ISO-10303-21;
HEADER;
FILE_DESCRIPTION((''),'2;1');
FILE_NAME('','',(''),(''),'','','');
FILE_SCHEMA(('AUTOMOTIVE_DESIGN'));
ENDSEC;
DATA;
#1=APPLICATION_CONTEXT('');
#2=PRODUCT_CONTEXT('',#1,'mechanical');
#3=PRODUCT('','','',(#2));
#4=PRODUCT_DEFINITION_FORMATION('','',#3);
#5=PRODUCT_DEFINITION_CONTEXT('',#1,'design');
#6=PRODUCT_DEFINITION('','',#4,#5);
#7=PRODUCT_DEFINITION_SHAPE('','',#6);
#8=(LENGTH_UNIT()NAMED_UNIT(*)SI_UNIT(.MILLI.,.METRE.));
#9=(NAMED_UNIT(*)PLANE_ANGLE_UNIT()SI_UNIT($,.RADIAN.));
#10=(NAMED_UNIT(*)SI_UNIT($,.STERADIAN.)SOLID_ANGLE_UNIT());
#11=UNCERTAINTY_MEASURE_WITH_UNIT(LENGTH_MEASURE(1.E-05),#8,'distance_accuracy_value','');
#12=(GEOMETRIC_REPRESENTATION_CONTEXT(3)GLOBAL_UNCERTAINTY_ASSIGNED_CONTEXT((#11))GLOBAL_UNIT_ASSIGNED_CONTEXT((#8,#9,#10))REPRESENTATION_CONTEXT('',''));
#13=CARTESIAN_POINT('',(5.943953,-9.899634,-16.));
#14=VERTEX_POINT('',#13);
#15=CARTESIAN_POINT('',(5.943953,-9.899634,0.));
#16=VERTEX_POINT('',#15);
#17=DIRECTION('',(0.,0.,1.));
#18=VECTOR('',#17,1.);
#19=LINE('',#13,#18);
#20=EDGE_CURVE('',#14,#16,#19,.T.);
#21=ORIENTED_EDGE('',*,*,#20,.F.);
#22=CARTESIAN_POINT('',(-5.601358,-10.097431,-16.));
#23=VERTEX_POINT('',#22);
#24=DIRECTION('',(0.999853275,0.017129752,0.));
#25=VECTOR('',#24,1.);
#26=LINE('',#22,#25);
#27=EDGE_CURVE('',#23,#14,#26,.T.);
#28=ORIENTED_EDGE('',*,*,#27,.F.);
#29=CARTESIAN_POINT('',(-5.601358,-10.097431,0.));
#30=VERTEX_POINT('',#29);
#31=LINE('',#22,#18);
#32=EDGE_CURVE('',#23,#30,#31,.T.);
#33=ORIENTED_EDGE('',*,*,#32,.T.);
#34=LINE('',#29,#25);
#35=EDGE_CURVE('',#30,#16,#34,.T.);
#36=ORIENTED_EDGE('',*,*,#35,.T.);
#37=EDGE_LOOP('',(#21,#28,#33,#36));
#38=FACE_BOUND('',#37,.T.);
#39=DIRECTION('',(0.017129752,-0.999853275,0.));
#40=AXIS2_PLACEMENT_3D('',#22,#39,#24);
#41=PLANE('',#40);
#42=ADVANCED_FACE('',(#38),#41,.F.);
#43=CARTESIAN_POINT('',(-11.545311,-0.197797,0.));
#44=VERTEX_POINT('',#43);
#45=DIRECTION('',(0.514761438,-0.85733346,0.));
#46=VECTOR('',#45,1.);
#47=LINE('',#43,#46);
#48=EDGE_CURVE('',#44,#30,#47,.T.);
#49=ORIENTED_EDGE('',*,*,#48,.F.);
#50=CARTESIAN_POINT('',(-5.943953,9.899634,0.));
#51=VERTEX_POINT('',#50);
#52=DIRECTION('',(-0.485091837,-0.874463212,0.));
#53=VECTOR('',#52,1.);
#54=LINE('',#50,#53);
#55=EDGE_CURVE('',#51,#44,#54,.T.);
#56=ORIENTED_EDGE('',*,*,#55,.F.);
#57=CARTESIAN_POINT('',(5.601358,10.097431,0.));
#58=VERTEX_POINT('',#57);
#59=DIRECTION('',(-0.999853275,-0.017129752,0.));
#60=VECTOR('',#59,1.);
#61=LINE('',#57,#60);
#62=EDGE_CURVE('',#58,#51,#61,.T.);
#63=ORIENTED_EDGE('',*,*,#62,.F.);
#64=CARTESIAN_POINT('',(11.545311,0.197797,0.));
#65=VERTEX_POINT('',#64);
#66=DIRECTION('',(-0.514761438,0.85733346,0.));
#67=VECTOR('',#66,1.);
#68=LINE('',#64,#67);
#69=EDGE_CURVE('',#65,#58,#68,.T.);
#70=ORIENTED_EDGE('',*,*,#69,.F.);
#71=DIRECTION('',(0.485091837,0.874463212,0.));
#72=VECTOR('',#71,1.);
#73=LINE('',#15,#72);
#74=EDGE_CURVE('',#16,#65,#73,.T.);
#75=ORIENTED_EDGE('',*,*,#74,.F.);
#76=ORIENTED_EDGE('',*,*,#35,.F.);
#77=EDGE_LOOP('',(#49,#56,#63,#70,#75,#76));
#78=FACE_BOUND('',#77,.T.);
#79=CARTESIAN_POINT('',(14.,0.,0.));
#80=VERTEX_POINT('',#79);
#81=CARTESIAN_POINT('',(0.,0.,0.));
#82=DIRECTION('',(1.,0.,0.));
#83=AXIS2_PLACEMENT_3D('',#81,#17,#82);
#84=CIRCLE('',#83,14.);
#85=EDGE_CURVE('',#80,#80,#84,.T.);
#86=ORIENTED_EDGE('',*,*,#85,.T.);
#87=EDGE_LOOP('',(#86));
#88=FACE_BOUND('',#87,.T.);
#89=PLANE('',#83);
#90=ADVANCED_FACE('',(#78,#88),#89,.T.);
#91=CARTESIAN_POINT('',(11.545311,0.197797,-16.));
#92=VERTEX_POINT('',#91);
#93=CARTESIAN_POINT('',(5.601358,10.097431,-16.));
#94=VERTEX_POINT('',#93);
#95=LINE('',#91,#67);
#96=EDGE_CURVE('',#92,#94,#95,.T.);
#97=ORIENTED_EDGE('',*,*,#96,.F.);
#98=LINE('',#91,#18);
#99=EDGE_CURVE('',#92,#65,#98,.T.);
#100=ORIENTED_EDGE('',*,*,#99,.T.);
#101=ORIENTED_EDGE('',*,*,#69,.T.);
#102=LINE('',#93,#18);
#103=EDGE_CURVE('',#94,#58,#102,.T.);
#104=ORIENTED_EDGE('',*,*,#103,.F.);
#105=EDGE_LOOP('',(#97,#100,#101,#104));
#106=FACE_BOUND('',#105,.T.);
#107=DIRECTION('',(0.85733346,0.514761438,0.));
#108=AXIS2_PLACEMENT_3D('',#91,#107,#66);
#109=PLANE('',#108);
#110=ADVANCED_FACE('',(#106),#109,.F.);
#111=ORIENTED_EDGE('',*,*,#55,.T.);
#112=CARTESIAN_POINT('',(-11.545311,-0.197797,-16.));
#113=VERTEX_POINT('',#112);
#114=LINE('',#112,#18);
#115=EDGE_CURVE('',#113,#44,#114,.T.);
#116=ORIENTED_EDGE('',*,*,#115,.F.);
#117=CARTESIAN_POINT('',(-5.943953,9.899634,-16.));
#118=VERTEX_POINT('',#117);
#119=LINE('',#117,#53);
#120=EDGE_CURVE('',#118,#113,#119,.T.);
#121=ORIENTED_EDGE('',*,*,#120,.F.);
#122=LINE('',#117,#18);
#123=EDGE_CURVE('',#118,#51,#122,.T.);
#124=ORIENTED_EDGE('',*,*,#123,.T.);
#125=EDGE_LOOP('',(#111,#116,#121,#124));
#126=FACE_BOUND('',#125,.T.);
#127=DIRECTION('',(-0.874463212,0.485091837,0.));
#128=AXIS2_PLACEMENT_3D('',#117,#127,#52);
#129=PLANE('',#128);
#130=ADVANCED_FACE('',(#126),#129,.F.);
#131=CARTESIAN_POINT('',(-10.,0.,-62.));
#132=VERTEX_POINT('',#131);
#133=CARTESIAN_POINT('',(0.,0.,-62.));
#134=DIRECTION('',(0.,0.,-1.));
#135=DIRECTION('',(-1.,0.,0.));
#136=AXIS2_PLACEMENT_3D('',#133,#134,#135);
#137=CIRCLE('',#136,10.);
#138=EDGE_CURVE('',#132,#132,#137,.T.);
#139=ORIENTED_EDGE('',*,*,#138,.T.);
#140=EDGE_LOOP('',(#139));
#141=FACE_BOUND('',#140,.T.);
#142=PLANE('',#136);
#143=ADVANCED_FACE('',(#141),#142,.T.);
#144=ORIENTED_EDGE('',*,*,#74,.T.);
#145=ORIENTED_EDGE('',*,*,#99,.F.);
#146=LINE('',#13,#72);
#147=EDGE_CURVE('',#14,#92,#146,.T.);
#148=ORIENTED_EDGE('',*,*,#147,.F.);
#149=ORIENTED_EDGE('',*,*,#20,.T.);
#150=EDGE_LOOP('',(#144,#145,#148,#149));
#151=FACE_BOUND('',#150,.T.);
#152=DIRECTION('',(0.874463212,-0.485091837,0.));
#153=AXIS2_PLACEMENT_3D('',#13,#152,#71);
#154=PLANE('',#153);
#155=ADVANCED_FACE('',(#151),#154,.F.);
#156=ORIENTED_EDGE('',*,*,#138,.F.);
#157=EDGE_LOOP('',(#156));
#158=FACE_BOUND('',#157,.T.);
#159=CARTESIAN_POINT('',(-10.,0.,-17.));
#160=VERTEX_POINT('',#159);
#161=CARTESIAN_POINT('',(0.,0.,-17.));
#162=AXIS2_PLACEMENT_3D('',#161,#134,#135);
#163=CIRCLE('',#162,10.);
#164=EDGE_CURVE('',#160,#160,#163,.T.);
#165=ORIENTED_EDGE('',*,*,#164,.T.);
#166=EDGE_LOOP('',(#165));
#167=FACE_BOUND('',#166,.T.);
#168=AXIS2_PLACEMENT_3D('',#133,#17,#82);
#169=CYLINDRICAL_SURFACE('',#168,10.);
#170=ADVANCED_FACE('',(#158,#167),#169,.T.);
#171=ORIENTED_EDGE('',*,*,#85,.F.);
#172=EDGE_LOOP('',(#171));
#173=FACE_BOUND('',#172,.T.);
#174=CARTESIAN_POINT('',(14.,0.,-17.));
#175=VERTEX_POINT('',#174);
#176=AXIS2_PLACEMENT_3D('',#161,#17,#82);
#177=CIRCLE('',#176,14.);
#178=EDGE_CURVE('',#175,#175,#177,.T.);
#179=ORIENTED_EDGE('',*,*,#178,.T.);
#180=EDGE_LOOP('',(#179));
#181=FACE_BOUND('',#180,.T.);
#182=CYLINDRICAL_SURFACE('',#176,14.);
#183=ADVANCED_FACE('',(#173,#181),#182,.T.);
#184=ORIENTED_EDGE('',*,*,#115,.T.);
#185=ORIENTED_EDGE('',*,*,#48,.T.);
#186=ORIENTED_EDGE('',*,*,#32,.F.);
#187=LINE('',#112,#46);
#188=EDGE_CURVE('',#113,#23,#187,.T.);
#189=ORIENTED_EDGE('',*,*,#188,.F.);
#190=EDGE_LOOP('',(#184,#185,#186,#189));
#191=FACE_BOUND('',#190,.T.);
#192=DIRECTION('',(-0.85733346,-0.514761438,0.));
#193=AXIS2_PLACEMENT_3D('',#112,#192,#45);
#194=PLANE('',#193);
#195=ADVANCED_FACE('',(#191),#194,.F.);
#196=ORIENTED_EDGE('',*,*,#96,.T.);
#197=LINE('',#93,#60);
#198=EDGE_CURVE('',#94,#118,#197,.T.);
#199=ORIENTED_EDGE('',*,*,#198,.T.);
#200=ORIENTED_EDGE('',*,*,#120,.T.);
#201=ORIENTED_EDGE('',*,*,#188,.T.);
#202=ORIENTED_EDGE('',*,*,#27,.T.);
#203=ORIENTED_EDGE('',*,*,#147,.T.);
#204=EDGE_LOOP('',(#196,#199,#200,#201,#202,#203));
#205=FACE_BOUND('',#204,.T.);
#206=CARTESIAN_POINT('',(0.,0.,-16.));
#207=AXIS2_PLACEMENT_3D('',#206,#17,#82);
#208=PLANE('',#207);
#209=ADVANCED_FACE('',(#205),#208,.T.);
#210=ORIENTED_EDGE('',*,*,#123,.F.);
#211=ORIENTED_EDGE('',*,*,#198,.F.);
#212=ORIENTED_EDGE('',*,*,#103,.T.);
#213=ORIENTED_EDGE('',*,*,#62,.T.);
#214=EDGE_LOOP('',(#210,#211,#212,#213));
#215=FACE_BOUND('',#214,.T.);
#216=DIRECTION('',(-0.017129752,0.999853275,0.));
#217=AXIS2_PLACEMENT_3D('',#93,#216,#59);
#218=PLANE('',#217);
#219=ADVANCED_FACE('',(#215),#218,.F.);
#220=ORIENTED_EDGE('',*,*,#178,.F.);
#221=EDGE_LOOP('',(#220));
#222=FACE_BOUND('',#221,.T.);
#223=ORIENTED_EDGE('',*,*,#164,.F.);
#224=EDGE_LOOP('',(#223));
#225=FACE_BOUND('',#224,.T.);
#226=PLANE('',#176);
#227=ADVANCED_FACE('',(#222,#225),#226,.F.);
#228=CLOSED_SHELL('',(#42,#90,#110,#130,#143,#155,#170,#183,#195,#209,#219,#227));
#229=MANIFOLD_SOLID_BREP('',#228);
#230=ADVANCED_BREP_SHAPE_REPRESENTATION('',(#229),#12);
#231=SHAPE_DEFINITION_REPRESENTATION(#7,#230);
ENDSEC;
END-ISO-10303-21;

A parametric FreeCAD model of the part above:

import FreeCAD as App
import Part
import Sketcher
from FreeCAD import Vector


def add_polygon(sketch, points):
    """Adds a closed chain of lines whose ends are joined by coincident constraints."""
    first, n = sketch.GeometryCount, len(points)
    for a, b in zip(points, points[1:] + points[:1]):
        sketch.addGeometry(Part.LineSegment(App.Vector(*a, 0), App.Vector(*b, 0)), False)
    for i in range(n):
        sketch.addConstraint(Sketcher.Constraint("Coincident", first + i, 2, first + (i + 1) % n, 1))

doc = App.newDocument("Part")
body = doc.addObject("PartDesign::Body", "Body")

# Sketch on XY plane
sketch1 = doc.addObject("Sketcher::SketchObject", "Sketch")
body.addObject(sketch1)
sketch1.AttachmentSupport = (doc.XY_Plane, [""])
sketch1.MapMode = "FlatFace"
sketch1.addGeometry(Part.Circle(Vector(0, 0, 0), Vector(0, 0, 1), 14), False)
sketch1.addConstraint([
    Sketcher.Constraint("Coincident", 0, 3, -1, 1),
    Sketcher.Constraint("Diameter", 0, 28.0),
])
pad1 = doc.addObject("PartDesign::Pad", "Pad")
body.addObject(pad1)
pad1.Profile = sketch1
pad1.Length = 17
pad1.Reversed = True

# Sketch on XY plane
sketch2 = doc.addObject("Sketcher::SketchObject", "Sketch001")
body.addObject(sketch2)
sketch2.AttachmentSupport = (doc.XY_Plane, [""])
sketch2.MapMode = "FlatFace"
sketch2.AttachmentOffset = App.Placement(Vector(0, 0, -17), App.Rotation())
sketch2.addGeometry(Part.Circle(Vector(0, 0, 0), Vector(0, 0, 1), 10), False)
sketch2.addConstraint([
    Sketcher.Constraint("Coincident", 0, 3, -1, 1),
    Sketcher.Constraint("Diameter", 0, 20.0),
])
pad2 = doc.addObject("PartDesign::Pad", "Pad001")
body.addObject(pad2)
pad2.Profile = sketch2
pad2.Length = 45
pad2.Reversed = True

# Sketch on XY plane
sketch3 = doc.addObject("Sketcher::SketchObject", "Sketch002")
body.addObject(sketch3)
sketch3.AttachmentSupport = (doc.XY_Plane, [""])
sketch3.MapMode = "FlatFace"
add_polygon(sketch3, [(5.601358, 10.097431), (-5.943953, 9.899634), (-11.545311, -0.197797), (-5.601358, -10.097431), (5.943953, -9.899634), (11.545311, 0.197797)])  # lines 0-5
sketch3.addConstraint([
    Sketcher.Constraint("Symmetric", 0, 2, 3, 2, -1, 1),
    Sketcher.Constraint("Symmetric", 1, 2, 4, 2, -1, 1),
    Sketcher.Constraint("Symmetric", 2, 2, 5, 2, -1, 1),
    Sketcher.Constraint("Equal", 0, 1),
    Sketcher.Constraint("Equal", 1, 2),
    Sketcher.Constraint("DistanceX", 1, 2, -1, 1, 11.545311),
    Sketcher.Constraint("DistanceX", 2, 2, -1, 1, 5.601358),
    Sketcher.Constraint("DistanceY", 2, 2, -1, 1, 10.097431),
    Sketcher.Constraint("DistanceX", 1, 2, 0, 2, 5.601358),
])
pocket1 = doc.addObject("PartDesign::Pocket", "Pocket")
body.addObject(pocket1)
pocket1.Profile = sketch3
pocket1.Length = 16

doc.recompute()
